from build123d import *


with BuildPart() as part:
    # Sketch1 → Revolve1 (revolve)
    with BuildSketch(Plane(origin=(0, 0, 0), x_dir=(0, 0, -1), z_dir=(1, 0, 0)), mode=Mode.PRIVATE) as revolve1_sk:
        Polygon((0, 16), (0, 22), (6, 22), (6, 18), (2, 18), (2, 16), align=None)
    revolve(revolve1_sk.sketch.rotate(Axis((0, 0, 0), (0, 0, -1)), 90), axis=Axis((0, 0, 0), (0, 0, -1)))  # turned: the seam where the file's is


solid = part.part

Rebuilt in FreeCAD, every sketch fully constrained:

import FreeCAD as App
import Part
import Sketcher
from FreeCAD import Vector

doc = App.newDocument("Part")
body = doc.addObject("PartDesign::Body", "Body")

sketch1 = body.newObject("Sketcher::SketchObject", "Sketch")
sketch1.AttachmentSupport = (doc.getObject("YZ_Plane"), [""])
sketch1.MapMode = "FlatFace"
sketch1.addGeometry([
    Part.LineSegment(Vector(22, 0, 0), Vector(16, 0, 0)),
    Part.LineSegment(Vector(16, 0, 0), Vector(16, -2, 0)),
    Part.LineSegment(Vector(16, -2, 0), Vector(18, -2, 0)),
    Part.LineSegment(Vector(18, -2, 0), Vector(18, -6, 0)),
    Part.LineSegment(Vector(18, -6, 0), Vector(22, -6, 0)),
    Part.LineSegment(Vector(22, -6, 0), Vector(22, 0, 0)),
], False)
sketch1.addConstraint([
    Sketcher.Constraint("Coincident", 0, 2, 1, 1),
    Sketcher.Constraint("Coincident", 1, 2, 2, 1),
    Sketcher.Constraint("Coincident", 2, 2, 3, 1),
    Sketcher.Constraint("Coincident", 3, 2, 4, 1),
    Sketcher.Constraint("Coincident", 4, 2, 5, 1),
    Sketcher.Constraint("Coincident", 5, 2, 0, 1),
    Sketcher.Constraint("Horizontal", 0),
    Sketcher.Constraint("Vertical", 1),
    Sketcher.Constraint("Horizontal", 2),
    Sketcher.Constraint("Vertical", 3),
    Sketcher.Constraint("Horizontal", 4),
    Sketcher.Constraint("Vertical", 5),
    Sketcher.Constraint("PointOnObject", 0, 2, -1),
    Sketcher.Constraint("Equal", 2, 1),
    Sketcher.Constraint("Equal", 4, 3),
    Sketcher.Constraint("DistanceX", 0, 2, 0, 1, 6.0),
    Sketcher.Constraint("DistanceX", 2, 1, 2, 2, 2.0),
    Sketcher.Constraint("DistanceX", -1, 1, 0, 2, 16.0),
])
revolution = body.newObject("PartDesign::Revolution", "Revolution")
revolution.Profile = sketch1
revolution.ReferenceAxis = (sketch1, ["V_Axis"])
revolution.Angle = 360

doc.recompute()
